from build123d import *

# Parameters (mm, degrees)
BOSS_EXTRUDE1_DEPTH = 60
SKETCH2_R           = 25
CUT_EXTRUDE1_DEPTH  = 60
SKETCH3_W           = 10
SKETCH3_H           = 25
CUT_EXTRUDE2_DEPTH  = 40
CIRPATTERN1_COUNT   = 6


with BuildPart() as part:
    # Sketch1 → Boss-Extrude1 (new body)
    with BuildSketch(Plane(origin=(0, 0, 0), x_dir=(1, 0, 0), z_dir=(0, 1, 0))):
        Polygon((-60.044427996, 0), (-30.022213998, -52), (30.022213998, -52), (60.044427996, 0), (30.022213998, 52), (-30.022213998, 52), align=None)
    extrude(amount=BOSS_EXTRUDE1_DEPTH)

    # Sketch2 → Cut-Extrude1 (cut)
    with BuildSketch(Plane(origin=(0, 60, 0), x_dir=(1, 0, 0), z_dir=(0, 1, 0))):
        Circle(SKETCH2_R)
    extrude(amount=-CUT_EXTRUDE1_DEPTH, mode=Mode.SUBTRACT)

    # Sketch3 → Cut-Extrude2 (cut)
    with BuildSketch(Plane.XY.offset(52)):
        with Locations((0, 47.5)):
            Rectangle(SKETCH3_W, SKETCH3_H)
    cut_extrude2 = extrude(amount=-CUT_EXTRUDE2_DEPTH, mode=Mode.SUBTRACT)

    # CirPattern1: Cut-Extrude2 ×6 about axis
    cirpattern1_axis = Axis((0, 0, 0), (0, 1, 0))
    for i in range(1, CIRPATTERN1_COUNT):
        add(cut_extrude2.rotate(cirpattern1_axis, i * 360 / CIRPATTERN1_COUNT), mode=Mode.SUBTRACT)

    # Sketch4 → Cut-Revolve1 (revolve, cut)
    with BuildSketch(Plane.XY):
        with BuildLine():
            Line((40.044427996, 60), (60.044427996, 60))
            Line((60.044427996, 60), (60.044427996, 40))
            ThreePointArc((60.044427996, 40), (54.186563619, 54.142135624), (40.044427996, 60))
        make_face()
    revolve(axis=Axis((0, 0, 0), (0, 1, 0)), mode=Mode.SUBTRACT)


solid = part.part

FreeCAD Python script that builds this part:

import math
import FreeCAD as App
import Part
import Sketcher

V = App.Vector
Q = App.Units.Quantity


def add_polygon(sketch, points):
    """Adds a closed chain of lines whose ends are joined by coincident constraints."""
    first, n = sketch.GeometryCount, len(points)
    for a, b in zip(points, points[1:] + points[:1]):
        sketch.addGeometry(Part.LineSegment(App.Vector(*a, 0), App.Vector(*b, 0)), False)
    for i in range(n):
        sketch.addConstraint(Sketcher.Constraint("Coincident", first + i, 2, first + (i + 1) % n, 1))

doc = App.newDocument("Part")
body = doc.addObject("PartDesign::Body", "Body")

# Sketch on XZ plane
sketch1 = doc.addObject("Sketcher::SketchObject", "Sketch")
body.addObject(sketch1)
sketch1.AttachmentSupport = (doc.XZ_Plane, [""])
sketch1.MapMode = "FlatFace"
add_polygon(sketch1, [(-60, 0), (-30, 52), (30, 52), (60, 0), (30, -52), (-30, -52)])  # lines 0-5
sketch1.addConstraint([
    Sketcher.Constraint("Horizontal", 1),
    Sketcher.Constraint("Horizontal", 4),
    Sketcher.Constraint("Symmetric", 0, 2, 3, 2, -1, 1),
    Sketcher.Constraint("Symmetric", 2, 2, 5, 2, -1, 1),
    Sketcher.Constraint("PointOnObject", 2, 2, -1),
    Sketcher.Constraint("Parallel", 2, 5),
    Sketcher.Constraint("Vertical", 1, 2, 3, 2),
    Sketcher.Constraint("Angle", 0, Q("60 deg")),
    Sketcher.Constraint("DistanceY", -1, 1, 0, 2, 52.0),
    Sketcher.Constraint("DistanceX", 1, 1, 1, 2, 60.044428),
])
pad1 = doc.addObject("PartDesign::Pad", "Pad")
body.addObject(pad1)
pad1.Profile = sketch1
pad1.Length = 60
pad1.Reversed = True

# Sketch on XZ plane
sketch2 = doc.addObject("Sketcher::SketchObject", "Sketch001")
body.addObject(sketch2)
sketch2.AttachmentSupport = (doc.XZ_Plane, [""])
sketch2.MapMode = "FlatFace"
sketch2.AttachmentOffset = App.Placement(V(0, 0, -60), App.Rotation())
sketch2.addGeometry(Part.Circle(V(0, 0, 0), V(0, 0, 1), 25), False)
sketch2.addConstraint([
    Sketcher.Constraint("Coincident", 0, 3, -1, 1),
    Sketcher.Constraint("Diameter", 0, 50.0),
])
pocket1 = doc.addObject("PartDesign::Pocket", "Pocket")
body.addObject(pocket1)
pocket1.Profile = sketch2
pocket1.Length = 60
pocket1.Reversed = True

# Sketch on XY plane
sketch3 = doc.addObject("Sketcher::SketchObject", "Sketch002")
body.addObject(sketch3)
sketch3.AttachmentSupport = (doc.XY_Plane, [""])
sketch3.MapMode = "FlatFace"
sketch3.AttachmentOffset = App.Placement(V(0, 0, 52), App.Rotation())
add_polygon(sketch3, [(-5, 60), (-5, 35), (5, 35), (5, 60)])  # lines 0-3
sketch3.addConstraint([
    Sketcher.Constraint("Vertical", 0),
    Sketcher.Constraint("Horizontal", 1),
    Sketcher.Constraint("Vertical", 2),
    Sketcher.Constraint("Horizontal", 3),
    Sketcher.Constraint("DistanceX", 1, 1, 1, 2, 10.0),
    Sketcher.Constraint("DistanceY", 0, 2, 0, 1, 25.0),
    Sketcher.Constraint("DistanceX", 0, 2, -1, 1, 5.0),
    Sketcher.Constraint("DistanceY", -1, 1, 0, 2, 35.0),
])
pocket2 = doc.addObject("PartDesign::Pocket", "Pocket001")
body.addObject(pocket2)
pocket2.Profile = sketch3
pocket2.Length = 40
doc.recompute()

polarpattern = doc.addObject("PartDesign::PolarPattern", "PolarPattern")
body.addObject(polarpattern)
polarpattern.Originals = [pocket2]
polarpattern.Axis = (doc.Y_Axis, [""])
polarpattern.Angle = 360
polarpattern.Occurrences = 6
body.Tip = polarpattern

# Sketch on XY plane
sketch4 = doc.addObject("Sketcher::SketchObject", "Sketch003")
body.addObject(sketch4)
sketch4.AttachmentSupport = (doc.XY_Plane, [""])
sketch4.MapMode = "FlatFace"
sketch4.addGeometry([
    Part.LineSegment(V(60, 60, 0), V(40, 60, 0)),
    Part.ArcOfCircle(Part.Circle(V(40, 40, 0), V(0, 0, 1), 20), math.radians(0), math.radians(90)),
    Part.LineSegment(V(60, 40, 0), V(60, 60, 0)),
], False)
sketch4.addConstraint([
    Sketcher.Constraint("Tangent", 0, 2, 1, 2),
    Sketcher.Constraint("Tangent", 1, 1, 2, 1),
    Sketcher.Constraint("Coincident", 2, 2, 0, 1),
    Sketcher.Constraint("Horizontal", 0),
    Sketcher.Constraint("Vertical", 2),
    Sketcher.Constraint("Radius", 1, 20.0),
    Sketcher.Constraint("DistanceY", -1, 1, 1, 3, 40.0),
    Sketcher.Constraint("DistanceX", -1, 1, 1, 3, 40.044428),
])
groove = doc.addObject("PartDesign::Groove", "Groove")
body.addObject(groove)
groove.Profile = sketch4
groove.ReferenceAxis = (sketch4, ["V_Axis"])
groove.Angle = 360

doc.recompute()
